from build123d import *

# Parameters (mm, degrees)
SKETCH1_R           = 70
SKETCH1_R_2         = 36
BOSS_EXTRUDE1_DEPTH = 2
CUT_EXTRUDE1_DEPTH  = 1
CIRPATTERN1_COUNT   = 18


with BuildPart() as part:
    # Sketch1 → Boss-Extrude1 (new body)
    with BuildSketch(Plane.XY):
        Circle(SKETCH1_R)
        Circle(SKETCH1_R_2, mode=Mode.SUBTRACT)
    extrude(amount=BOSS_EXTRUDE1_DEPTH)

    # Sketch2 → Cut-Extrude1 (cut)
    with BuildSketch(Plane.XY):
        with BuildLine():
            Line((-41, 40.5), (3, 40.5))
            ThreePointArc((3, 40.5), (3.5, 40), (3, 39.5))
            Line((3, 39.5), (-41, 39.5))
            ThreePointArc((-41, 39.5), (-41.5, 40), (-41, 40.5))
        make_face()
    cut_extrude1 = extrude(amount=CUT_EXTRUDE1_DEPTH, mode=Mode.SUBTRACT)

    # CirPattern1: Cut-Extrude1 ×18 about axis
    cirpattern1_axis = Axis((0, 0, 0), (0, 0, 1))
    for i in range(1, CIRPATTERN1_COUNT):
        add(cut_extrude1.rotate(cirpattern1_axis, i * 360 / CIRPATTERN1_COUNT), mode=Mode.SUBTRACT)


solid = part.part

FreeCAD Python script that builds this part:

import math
import FreeCAD as App
import Part
import Sketcher

V = App.Vector
Q = App.Units.Quantity

doc = App.newDocument("Part")
body = doc.addObject("PartDesign::Body", "Body")

# Sketch on XY plane
sketch1 = doc.addObject("Sketcher::SketchObject", "Sketch")
body.addObject(sketch1)
sketch1.AttachmentSupport = (doc.XY_Plane, [""])
sketch1.MapMode = "FlatFace"
sketch1.addGeometry([
    Part.Circle(V(0, 0, 0), V(0, 0, 1), 70),
    Part.Circle(V(0, 0, 0), V(0, 0, 1), 36),
], False)
sketch1.addConstraint([
    Sketcher.Constraint("Coincident", 0, 3, -1, 1),
    Sketcher.Constraint("Coincident", 1, 3, -1, 1),
    Sketcher.Constraint("Diameter", 0, Q("140 mm")),
    Sketcher.Constraint("Diameter", 1, Q("72 mm")),
])
pad1 = doc.addObject("PartDesign::Pad", "Pad")
body.addObject(pad1)
pad1.Profile = sketch1
pad1.Length = 2

# Sketch on XY plane
sketch2 = doc.addObject("Sketcher::SketchObject", "Sketch001")
body.addObject(sketch2)
sketch2.AttachmentSupport = (doc.XY_Plane, [""])
sketch2.MapMode = "FlatFace"
sketch2.addGeometry([
    Part.LineSegment(V(3, 40.5, 0), V(-41, 40.5, 0)),
    Part.ArcOfCircle(Part.Circle(V(-41, 40, 0), V(0, 0, 1), 0.5), math.radians(90), math.radians(270)),
    Part.LineSegment(V(-41, 39.5, 0), V(3, 39.5, 0)),
    Part.ArcOfCircle(Part.Circle(V(3, 40, 0), V(0, 0, 1), 0.5), math.radians(-90), math.radians(90)),
], False)
sketch2.addConstraint([
    Sketcher.Constraint("Tangent", 0, 2, 1, 1),
    Sketcher.Constraint("Tangent", 1, 2, 2, 1),
    Sketcher.Constraint("Tangent", 2, 2, 3, 1),
    Sketcher.Constraint("Tangent", 3, 2, 0, 1),
    Sketcher.Constraint("Horizontal", 0),
    Sketcher.Constraint("Horizontal", 2),
    Sketcher.Constraint("Radius", 1, Q("0.5 mm")),
    Sketcher.Constraint("DistanceX", 0, 2, 0, 1, Q("44 mm")),
    Sketcher.Constraint("DistanceX", 1, 3, -1, 1, Q("41 mm")),
    Sketcher.Constraint("DistanceY", -1, 1, 1, 3, Q("40 mm")),
])
pocket1 = doc.addObject("PartDesign::Pocket", "Pocket")
body.addObject(pocket1)
pocket1.Profile = sketch2
pocket1.Length = 1
pocket1.Reversed = True
doc.recompute()

polarpattern = doc.addObject("PartDesign::PolarPattern", "PolarPattern")
body.addObject(polarpattern)
polarpattern.Originals = [pocket1]
polarpattern.Axis = (doc.Z_Axis, [""])
polarpattern.Angle = 360
polarpattern.Occurrences = 18
body.Tip = polarpattern

doc.recompute()
